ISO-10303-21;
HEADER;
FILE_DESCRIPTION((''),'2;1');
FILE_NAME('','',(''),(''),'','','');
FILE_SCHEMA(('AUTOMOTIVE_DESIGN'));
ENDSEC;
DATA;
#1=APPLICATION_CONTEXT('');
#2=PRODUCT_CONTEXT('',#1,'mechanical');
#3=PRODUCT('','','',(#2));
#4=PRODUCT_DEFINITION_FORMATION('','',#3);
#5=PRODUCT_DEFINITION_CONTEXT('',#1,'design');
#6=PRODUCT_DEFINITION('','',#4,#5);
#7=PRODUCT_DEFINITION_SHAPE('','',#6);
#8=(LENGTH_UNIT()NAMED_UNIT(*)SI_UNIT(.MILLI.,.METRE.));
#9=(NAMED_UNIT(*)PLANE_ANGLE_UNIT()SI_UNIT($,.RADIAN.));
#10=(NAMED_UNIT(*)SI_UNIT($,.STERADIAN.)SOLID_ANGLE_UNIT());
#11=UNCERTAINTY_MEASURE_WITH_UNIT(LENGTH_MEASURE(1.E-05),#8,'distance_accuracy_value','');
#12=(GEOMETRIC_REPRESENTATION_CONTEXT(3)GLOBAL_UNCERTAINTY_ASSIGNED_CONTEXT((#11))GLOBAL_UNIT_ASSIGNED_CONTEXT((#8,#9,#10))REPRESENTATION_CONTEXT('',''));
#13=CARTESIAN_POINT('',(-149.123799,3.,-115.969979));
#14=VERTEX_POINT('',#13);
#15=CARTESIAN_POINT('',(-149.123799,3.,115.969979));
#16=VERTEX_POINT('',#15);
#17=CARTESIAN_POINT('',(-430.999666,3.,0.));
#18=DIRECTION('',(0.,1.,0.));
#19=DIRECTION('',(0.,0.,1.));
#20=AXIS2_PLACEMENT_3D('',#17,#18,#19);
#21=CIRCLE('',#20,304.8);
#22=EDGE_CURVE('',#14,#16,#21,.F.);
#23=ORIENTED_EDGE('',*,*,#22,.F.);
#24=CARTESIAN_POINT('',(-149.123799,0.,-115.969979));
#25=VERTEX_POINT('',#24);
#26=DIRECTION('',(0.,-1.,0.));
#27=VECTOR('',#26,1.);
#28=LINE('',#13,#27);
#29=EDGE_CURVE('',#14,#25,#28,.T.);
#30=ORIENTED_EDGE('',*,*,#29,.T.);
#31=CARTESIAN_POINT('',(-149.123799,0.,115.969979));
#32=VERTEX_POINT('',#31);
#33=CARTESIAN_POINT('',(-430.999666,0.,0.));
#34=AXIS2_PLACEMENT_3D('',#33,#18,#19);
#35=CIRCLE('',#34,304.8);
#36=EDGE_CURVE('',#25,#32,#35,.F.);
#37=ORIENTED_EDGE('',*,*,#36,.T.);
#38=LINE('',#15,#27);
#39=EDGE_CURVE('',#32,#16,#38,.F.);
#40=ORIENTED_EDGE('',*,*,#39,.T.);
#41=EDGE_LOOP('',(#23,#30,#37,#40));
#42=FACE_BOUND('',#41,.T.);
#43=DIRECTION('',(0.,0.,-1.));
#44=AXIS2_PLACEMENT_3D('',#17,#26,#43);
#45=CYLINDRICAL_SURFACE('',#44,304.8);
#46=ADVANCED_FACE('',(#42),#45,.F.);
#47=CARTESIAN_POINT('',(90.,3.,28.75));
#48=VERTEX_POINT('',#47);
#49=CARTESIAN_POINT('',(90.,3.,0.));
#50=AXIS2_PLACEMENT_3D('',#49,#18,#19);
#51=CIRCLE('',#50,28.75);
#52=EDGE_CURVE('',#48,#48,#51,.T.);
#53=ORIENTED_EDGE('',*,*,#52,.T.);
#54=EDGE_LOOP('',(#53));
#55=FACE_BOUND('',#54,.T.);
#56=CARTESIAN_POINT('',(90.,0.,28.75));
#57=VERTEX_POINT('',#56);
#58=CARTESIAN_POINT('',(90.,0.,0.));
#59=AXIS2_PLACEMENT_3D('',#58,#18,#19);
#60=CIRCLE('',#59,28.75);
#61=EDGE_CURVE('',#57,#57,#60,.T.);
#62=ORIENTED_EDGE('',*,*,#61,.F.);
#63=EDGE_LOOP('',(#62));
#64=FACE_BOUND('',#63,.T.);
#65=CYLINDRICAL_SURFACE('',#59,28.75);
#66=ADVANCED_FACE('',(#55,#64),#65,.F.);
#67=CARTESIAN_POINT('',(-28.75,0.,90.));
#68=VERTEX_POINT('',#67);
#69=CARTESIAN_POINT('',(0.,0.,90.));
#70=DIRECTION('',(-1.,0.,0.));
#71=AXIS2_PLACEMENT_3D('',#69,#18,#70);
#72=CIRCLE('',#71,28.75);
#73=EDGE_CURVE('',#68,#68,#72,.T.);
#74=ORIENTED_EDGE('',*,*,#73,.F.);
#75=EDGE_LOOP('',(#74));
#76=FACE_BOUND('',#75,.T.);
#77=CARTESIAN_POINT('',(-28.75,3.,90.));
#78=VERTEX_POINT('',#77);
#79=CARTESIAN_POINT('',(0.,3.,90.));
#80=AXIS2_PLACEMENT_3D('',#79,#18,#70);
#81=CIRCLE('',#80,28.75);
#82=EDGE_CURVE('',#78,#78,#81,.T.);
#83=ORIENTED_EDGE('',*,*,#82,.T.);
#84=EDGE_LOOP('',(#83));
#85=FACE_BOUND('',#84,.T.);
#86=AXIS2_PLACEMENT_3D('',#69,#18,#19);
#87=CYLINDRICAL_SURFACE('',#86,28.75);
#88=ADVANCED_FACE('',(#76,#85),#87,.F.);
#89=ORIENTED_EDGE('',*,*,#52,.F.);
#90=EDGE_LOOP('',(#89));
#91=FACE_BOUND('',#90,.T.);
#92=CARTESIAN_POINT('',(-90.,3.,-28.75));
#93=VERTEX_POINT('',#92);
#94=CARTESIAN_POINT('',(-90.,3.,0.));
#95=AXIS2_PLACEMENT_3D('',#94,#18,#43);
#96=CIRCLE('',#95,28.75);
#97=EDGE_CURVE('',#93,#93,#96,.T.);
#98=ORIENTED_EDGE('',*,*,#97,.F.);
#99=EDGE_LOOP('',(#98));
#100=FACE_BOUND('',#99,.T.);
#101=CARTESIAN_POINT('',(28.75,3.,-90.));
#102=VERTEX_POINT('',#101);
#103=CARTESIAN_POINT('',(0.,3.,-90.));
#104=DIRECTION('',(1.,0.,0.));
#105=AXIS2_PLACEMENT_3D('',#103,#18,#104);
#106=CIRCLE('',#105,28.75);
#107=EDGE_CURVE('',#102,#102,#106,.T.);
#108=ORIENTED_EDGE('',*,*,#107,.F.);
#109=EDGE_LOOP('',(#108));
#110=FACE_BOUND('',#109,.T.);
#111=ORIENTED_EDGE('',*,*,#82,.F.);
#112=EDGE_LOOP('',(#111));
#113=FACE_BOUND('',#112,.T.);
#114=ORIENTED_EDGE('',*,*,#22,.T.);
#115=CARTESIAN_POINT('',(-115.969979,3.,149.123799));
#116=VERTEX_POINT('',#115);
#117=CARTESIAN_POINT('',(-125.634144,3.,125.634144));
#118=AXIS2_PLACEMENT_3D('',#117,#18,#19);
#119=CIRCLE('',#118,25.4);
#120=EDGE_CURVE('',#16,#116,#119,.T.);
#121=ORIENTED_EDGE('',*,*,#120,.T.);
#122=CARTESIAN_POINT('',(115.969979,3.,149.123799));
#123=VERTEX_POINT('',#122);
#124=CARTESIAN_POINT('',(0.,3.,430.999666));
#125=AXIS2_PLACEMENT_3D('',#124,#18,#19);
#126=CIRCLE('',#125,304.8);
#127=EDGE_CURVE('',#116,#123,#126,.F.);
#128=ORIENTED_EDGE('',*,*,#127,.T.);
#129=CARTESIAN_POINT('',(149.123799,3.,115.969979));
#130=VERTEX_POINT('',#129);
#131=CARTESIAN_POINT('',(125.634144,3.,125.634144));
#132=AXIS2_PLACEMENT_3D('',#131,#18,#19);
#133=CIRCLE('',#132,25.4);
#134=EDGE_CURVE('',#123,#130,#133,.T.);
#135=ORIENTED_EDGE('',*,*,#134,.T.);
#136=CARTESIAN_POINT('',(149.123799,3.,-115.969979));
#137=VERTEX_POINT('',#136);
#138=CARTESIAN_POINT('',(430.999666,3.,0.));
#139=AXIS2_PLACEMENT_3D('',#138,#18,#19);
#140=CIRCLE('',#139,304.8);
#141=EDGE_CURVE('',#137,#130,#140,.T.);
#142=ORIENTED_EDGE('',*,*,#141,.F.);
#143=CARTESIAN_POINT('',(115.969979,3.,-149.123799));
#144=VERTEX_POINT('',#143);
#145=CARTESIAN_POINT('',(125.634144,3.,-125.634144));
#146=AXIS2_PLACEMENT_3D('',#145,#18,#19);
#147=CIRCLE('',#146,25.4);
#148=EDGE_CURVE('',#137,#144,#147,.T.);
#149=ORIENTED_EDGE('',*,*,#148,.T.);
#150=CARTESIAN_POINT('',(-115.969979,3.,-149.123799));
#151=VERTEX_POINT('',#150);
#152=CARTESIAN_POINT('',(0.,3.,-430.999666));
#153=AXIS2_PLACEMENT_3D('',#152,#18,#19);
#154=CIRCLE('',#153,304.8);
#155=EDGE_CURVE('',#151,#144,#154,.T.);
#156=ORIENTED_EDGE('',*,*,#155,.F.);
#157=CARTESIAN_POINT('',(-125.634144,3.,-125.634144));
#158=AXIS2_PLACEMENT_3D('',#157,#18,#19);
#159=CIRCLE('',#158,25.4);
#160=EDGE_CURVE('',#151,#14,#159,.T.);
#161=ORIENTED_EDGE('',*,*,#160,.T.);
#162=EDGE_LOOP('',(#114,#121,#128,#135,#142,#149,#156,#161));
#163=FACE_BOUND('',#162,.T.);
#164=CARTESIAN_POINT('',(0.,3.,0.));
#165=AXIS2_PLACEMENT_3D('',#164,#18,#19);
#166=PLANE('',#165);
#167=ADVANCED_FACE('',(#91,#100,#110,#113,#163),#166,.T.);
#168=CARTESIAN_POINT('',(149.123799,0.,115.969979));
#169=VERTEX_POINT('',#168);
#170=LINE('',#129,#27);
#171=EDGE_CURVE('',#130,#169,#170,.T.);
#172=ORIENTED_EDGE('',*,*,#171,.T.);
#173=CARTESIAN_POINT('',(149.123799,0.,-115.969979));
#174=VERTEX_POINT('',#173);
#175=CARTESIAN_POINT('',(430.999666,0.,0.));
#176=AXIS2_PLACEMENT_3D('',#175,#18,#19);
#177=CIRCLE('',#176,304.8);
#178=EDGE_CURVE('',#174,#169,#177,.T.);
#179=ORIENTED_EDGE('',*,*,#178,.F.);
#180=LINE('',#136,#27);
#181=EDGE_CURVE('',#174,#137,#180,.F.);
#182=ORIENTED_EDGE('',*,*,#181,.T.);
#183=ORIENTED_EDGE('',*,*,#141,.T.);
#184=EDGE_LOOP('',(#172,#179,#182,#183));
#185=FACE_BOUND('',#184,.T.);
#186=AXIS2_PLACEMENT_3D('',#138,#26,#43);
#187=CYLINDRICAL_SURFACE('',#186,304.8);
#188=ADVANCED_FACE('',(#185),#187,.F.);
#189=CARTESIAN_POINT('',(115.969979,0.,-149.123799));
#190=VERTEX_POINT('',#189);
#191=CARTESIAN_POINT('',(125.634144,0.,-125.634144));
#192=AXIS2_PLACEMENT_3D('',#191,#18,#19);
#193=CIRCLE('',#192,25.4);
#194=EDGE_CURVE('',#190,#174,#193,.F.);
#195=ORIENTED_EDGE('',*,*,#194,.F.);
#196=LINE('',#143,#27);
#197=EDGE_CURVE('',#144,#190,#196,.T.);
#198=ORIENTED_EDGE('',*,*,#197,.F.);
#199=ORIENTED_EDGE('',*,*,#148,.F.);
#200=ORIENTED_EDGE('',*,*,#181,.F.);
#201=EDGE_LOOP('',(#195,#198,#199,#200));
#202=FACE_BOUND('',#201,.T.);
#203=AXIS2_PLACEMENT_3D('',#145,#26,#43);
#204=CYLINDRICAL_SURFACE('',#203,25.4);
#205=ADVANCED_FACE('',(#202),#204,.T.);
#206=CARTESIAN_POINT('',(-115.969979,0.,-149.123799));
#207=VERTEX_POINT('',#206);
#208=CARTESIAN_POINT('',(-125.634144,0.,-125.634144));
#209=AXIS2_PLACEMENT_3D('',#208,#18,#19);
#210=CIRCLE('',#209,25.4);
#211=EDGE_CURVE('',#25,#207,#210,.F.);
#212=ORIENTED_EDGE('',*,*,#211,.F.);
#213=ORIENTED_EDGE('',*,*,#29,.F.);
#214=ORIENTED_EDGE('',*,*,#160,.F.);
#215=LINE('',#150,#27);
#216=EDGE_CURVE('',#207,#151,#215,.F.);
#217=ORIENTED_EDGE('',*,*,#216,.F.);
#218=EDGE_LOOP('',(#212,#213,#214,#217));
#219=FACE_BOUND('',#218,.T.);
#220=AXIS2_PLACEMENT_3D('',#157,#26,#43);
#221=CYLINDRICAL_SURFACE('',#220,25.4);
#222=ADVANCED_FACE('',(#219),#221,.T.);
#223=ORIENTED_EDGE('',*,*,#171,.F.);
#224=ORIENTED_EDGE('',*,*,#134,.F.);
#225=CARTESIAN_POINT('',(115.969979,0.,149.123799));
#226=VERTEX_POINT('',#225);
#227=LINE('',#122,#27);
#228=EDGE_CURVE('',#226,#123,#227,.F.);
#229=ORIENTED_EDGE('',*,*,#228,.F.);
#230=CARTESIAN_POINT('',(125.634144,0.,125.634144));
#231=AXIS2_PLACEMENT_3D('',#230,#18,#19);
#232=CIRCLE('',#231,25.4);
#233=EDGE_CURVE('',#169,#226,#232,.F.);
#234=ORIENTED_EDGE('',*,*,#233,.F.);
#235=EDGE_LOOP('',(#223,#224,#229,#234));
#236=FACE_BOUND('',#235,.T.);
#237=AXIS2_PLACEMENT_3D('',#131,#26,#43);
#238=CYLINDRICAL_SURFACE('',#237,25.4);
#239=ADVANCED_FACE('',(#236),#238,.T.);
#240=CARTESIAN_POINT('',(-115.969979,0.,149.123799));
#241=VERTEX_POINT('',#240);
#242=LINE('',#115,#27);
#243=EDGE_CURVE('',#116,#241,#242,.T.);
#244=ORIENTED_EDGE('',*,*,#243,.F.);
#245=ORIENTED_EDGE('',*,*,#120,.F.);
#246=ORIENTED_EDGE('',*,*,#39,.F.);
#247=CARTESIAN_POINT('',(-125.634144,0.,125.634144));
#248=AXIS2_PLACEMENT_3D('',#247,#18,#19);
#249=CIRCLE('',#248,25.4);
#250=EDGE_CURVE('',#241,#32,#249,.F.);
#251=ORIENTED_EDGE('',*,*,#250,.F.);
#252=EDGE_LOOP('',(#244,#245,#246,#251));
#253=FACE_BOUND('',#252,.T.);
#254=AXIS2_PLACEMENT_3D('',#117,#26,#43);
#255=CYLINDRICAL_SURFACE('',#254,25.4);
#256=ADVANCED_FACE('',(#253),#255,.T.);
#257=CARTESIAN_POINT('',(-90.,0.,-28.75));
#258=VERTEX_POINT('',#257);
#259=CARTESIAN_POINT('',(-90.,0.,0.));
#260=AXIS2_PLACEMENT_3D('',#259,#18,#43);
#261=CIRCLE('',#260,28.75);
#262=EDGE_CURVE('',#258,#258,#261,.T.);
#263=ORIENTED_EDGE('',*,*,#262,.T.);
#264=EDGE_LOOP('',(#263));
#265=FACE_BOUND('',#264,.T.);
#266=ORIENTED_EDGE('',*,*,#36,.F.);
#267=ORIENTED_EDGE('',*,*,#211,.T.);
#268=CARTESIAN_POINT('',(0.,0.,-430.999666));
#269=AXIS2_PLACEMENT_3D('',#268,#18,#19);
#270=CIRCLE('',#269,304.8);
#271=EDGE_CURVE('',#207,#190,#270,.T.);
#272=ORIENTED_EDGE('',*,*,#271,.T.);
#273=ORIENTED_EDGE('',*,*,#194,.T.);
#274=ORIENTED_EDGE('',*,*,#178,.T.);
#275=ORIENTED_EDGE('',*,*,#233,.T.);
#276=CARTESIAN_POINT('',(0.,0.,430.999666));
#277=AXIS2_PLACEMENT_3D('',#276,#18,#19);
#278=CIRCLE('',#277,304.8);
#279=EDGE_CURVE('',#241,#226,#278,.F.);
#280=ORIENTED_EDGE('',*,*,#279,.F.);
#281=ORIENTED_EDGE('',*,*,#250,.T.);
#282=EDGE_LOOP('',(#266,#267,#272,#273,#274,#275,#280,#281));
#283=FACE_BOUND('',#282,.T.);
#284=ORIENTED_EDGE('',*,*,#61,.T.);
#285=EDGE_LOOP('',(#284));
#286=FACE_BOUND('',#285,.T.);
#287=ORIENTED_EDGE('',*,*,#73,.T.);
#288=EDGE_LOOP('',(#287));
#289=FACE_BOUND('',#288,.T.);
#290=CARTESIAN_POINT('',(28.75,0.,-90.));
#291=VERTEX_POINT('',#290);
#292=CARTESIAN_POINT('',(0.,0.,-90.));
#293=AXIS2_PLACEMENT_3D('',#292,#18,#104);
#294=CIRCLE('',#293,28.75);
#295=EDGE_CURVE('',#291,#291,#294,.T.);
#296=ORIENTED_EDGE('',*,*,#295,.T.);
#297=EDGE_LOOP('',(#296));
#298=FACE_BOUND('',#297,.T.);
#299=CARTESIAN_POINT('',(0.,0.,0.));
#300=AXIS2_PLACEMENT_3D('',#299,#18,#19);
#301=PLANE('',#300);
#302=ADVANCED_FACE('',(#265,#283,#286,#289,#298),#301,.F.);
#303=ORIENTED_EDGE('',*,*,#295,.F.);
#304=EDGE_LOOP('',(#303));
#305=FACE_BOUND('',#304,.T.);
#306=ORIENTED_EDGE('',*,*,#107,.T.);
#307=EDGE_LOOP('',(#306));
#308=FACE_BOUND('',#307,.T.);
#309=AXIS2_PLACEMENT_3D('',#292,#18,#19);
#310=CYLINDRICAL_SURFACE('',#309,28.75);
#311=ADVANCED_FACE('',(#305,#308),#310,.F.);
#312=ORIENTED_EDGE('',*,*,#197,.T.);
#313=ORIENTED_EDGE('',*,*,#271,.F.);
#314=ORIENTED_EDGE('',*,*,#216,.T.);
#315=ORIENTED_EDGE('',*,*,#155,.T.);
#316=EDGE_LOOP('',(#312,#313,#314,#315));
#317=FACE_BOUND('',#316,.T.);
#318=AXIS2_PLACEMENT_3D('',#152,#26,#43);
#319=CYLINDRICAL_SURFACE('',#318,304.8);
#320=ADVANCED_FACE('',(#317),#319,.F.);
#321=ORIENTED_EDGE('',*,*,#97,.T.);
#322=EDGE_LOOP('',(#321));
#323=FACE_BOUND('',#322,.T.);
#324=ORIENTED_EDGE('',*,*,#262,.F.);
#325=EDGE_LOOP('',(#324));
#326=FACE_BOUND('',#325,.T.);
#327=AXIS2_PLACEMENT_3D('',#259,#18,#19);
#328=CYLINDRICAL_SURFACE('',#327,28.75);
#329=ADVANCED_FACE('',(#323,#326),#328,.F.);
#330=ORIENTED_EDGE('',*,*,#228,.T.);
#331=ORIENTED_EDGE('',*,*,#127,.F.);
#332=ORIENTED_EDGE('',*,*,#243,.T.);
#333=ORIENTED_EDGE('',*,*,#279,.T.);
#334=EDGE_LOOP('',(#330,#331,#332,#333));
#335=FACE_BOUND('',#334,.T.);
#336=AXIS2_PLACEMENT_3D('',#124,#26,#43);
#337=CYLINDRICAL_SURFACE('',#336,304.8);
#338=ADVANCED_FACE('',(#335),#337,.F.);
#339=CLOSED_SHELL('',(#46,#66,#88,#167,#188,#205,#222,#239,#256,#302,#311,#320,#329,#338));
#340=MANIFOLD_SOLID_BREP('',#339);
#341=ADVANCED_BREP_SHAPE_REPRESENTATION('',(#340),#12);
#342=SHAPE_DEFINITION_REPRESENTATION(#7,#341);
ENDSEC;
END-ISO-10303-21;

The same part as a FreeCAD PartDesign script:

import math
import FreeCAD as App
import Part
import Sketcher

V = App.Vector
Q = App.Units.Quantity


def edges_at(feature, points):
    """Names of the edges that pass closest to the given points."""
    edges = feature.Shape.Edges
    near = lambda p: min(range(len(edges)), key=lambda i: edges[i].distToShape(Part.Vertex(*p))[0])
    return sorted({f"Edge{near(p) + 1}" for p in points})

doc = App.newDocument("Part")
body = doc.addObject("PartDesign::Body", "Body")

sketch1 = body.newObject("Sketcher::SketchObject", "Sketch")
sketch1.AttachmentSupport = (doc.getObject("XZ_Plane"), [""])
sketch1.MapMode = "FlatFace"
sketch1.addGeometry([
    Part.ArcOfCircle(Part.Circle(V(0, -431, 0), V(0, 0, 1), 305), math.radians(46), math.radians(134)),
    Part.ArcOfCircle(Part.Circle(V(-431, 0, 0), V(0, 0, 1), 305), math.radians(-44), math.radians(44)),
    Part.ArcOfCircle(Part.Circle(V(0, 431, 0), V(0, 0, 1), 305), math.radians(-134), math.radians(-46)),
    Part.ArcOfCircle(Part.Circle(V(431, 0, 0), V(0, 0, 1), 305), math.radians(136), math.radians(224)),
], False)
sketch1.addConstraint([
    Sketcher.Constraint("Coincident", 0, 2, 1, 1),
    Sketcher.Constraint("Coincident", 1, 2, 2, 1),
    Sketcher.Constraint("Coincident", 2, 2, 3, 1),
    Sketcher.Constraint("Coincident", 3, 2, 0, 1),
    Sketcher.Constraint("Equal", 0, 1),
    Sketcher.Constraint("Equal", 1, 2),
    Sketcher.Constraint("Equal", 2, 3),
    Sketcher.Constraint("Symmetric", 0, 3, 2, 3, -1, 1),
    Sketcher.Constraint("Symmetric", 1, 3, 3, 3, -1, 1),
    Sketcher.Constraint("Symmetric", 1, 2, 2, 2, -2),
    Sketcher.Constraint("Radius", 0, Q("304.8 mm")),
    Sketcher.Constraint("DistanceY", 0, 2, 2, 3, Q("643.1317 mm")),
    Sketcher.Constraint("DistanceX", 0, 2, 3, 3, Q("643.1317 mm")),
])
pad1 = body.newObject("PartDesign::Pad", "Pad")
pad1.Profile = sketch1
pad1.Length = 3
pad1.Reversed = True
doc.recompute()

fillet = body.newObject("PartDesign::Fillet", "Fillet")
fillet.Base = (pad1, edges_at(pad1, [
    (212.132, 1.5, -212.132),
    (212.132, 1.5, 212.132),
    (-212.132, 1.5, 212.132),
    (-212.132, 1.5, -212.132),
]))
fillet.Radius = 25.4

sketch2 = body.newObject("Sketcher::SketchObject", "Sketch001")
sketch2.AttachmentSupport = (doc.getObject("XZ_Plane"), [""])
sketch2.MapMode = "FlatFace"
sketch2.AttachmentOffset = App.Placement(V(0, 0, -3), App.Rotation())
sketch2.addGeometry(Part.Circle(V(90, 0, 0), V(0, 0, 1), 29), False)
sketch2.addConstraint([
    Sketcher.Constraint("PointOnObject", 0, 3, -1),
    Sketcher.Constraint("Diameter", 0, Q("57.5 mm")),
    Sketcher.Constraint("DistanceX", -1, 1, 0, 3, Q("90 mm")),
])
pocket1 = body.newObject("PartDesign::Pocket", "Pocket")
pocket1.Profile = sketch2
pocket1.Type = "ThroughAll"
pocket1.Reversed = True
doc.recompute()

polarpattern = body.newObject("PartDesign::PolarPattern", "PolarPattern")
polarpattern.Originals = [pocket1]
polarpattern.Axis = (doc.getObject("Y_Axis"), [""])
polarpattern.Angle = 360
polarpattern.Occurrences = 4
body.Tip = polarpattern

doc.recompute()
